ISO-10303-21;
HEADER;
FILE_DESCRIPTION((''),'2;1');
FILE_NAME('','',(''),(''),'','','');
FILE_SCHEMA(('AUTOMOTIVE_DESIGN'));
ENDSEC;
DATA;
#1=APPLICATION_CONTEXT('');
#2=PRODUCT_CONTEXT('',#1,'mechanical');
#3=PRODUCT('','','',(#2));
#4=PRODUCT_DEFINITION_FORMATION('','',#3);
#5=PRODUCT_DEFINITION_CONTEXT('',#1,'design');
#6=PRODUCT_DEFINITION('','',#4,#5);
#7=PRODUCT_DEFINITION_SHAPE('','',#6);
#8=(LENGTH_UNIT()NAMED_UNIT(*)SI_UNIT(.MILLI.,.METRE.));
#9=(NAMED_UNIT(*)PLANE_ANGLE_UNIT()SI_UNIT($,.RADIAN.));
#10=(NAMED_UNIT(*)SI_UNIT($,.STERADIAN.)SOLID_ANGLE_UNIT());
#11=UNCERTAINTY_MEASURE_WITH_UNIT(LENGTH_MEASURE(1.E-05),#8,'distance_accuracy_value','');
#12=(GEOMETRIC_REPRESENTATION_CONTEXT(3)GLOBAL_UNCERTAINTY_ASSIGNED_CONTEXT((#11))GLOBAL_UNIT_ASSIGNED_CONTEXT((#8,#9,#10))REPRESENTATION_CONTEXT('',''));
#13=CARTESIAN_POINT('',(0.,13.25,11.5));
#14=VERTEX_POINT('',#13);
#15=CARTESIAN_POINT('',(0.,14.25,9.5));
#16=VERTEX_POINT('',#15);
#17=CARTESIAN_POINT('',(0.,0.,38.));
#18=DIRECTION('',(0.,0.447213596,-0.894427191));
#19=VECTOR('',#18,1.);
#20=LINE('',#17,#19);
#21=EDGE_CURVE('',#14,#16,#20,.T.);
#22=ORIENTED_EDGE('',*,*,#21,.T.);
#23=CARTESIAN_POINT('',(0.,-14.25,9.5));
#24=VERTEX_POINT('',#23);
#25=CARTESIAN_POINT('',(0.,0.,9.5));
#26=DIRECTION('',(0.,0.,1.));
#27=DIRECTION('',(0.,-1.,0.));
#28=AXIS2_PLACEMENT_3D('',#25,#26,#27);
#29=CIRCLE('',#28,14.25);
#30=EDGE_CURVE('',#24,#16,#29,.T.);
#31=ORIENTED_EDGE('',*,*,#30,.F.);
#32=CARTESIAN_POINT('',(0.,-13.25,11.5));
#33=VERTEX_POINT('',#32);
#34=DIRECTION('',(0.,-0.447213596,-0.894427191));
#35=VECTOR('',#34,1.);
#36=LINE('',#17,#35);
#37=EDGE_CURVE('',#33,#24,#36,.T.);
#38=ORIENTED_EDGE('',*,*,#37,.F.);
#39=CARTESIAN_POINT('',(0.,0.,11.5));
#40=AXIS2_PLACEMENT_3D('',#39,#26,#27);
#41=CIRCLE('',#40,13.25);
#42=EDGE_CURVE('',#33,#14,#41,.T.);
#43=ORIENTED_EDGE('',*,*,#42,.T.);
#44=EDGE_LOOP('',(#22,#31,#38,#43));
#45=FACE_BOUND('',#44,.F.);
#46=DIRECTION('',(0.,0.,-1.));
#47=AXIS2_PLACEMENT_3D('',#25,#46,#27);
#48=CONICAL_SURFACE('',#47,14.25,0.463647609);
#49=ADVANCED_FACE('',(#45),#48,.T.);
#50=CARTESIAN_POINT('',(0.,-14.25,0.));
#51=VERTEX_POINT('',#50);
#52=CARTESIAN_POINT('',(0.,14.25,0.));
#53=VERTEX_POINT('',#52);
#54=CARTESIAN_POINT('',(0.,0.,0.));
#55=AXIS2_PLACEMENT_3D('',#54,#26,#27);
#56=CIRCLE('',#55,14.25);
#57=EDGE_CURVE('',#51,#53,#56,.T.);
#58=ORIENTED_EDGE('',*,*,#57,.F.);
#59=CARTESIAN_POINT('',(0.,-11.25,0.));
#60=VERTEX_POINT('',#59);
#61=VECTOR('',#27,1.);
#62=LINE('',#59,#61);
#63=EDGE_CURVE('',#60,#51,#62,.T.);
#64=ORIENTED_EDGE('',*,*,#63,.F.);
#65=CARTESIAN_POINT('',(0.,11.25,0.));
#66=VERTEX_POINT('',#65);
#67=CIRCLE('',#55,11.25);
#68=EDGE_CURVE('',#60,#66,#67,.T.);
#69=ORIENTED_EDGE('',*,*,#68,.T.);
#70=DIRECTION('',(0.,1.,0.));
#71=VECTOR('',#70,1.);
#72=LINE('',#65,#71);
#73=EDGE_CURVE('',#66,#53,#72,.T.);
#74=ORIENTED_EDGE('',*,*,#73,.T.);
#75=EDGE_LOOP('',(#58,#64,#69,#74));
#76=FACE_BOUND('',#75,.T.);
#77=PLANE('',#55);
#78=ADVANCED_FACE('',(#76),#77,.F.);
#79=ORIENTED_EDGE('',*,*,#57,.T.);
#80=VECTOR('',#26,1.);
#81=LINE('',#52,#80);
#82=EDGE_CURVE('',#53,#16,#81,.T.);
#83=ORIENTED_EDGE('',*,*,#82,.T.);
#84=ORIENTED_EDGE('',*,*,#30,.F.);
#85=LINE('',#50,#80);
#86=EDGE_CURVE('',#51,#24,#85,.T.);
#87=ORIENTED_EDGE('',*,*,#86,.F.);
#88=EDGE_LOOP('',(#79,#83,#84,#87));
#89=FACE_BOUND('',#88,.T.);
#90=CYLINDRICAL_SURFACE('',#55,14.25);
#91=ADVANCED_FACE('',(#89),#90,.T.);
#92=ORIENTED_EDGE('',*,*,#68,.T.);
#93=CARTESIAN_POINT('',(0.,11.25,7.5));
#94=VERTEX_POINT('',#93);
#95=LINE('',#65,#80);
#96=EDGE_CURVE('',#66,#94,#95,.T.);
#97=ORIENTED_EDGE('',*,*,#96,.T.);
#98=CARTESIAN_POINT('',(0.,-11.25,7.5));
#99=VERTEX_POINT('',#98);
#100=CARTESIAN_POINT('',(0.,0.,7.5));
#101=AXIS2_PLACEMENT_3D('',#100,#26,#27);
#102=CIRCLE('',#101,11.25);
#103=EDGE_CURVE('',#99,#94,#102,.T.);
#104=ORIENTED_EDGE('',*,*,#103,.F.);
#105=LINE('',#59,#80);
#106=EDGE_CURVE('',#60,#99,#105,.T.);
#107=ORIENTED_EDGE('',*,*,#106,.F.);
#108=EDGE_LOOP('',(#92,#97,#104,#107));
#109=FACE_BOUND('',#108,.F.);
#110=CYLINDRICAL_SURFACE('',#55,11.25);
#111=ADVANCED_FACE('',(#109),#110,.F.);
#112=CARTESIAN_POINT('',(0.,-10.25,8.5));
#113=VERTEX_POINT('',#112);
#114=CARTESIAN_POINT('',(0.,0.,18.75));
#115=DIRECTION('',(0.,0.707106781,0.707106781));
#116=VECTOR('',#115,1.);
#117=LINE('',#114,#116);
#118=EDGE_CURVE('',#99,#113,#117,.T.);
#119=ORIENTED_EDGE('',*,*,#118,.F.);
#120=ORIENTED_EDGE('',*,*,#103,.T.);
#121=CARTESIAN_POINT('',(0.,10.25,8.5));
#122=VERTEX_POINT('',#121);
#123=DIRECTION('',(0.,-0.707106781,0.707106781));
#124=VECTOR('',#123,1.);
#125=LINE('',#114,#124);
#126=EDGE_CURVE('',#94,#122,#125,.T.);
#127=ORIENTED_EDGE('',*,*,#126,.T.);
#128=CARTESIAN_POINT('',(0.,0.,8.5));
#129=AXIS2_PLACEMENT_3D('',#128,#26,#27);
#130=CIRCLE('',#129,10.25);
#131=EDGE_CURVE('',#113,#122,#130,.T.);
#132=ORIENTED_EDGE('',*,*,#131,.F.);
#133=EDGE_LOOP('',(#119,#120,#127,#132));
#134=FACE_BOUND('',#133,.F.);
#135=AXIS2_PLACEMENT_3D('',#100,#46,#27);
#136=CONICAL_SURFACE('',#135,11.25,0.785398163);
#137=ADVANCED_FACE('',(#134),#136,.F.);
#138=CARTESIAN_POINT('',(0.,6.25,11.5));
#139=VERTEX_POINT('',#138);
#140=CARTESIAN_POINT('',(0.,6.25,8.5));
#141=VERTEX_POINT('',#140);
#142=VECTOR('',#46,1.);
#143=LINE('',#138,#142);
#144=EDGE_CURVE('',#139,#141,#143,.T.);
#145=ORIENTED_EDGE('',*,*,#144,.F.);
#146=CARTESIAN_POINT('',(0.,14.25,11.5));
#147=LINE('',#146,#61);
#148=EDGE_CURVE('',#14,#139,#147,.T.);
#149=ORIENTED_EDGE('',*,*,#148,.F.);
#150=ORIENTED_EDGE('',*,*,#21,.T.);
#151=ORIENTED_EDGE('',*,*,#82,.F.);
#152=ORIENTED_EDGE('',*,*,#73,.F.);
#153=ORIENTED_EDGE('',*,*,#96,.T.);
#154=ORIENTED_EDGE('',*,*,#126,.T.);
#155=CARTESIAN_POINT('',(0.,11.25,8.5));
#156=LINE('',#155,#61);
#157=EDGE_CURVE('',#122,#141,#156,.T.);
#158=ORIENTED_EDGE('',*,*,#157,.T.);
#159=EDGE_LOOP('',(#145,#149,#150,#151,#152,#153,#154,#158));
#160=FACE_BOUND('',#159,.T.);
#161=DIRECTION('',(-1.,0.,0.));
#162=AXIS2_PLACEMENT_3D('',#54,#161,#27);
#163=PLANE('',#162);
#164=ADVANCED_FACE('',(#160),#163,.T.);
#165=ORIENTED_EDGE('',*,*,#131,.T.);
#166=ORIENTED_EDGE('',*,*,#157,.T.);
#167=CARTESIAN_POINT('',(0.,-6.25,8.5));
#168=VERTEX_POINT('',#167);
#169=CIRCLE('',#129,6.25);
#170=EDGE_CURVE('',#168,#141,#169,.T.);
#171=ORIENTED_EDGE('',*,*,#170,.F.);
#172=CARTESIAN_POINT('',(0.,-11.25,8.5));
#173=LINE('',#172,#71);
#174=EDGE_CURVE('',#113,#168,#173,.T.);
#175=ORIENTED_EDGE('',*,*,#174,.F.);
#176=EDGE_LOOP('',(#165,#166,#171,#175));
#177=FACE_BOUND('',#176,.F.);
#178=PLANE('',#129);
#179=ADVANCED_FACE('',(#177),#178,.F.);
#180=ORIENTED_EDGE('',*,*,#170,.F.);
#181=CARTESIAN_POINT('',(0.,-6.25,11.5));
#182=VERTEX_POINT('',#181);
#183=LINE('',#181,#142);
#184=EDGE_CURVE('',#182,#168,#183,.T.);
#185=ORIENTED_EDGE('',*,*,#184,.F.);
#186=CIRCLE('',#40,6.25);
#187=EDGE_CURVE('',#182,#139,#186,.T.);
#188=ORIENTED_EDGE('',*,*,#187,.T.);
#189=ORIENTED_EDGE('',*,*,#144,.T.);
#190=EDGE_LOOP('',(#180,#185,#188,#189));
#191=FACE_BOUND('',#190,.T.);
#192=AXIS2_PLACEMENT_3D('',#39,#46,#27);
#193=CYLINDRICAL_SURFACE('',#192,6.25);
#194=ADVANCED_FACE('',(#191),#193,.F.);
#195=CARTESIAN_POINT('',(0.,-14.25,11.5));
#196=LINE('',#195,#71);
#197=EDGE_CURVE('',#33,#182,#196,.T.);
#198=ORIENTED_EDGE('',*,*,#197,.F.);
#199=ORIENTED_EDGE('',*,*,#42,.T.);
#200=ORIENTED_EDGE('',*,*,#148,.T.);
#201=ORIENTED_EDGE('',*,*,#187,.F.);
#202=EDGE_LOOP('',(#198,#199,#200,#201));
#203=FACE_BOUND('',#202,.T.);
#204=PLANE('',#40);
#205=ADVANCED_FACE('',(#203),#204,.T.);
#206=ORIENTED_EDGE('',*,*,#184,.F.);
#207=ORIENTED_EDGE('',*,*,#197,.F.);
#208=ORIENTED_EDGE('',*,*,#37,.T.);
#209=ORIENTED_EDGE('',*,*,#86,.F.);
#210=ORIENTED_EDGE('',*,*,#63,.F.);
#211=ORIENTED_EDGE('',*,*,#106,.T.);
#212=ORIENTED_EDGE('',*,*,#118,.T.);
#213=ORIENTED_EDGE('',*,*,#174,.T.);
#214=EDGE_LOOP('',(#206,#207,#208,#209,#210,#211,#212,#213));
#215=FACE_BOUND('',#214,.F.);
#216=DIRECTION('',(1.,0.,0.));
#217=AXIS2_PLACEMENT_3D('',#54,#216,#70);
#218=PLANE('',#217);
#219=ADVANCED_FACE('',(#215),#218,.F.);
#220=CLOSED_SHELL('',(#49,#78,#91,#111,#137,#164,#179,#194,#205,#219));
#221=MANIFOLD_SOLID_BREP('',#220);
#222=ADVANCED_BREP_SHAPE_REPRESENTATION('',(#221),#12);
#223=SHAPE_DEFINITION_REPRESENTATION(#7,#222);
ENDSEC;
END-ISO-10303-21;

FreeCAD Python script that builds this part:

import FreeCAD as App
import Part
import Sketcher

V = App.Vector


def edges_at(feature, points):
    """Names of the edges that pass closest to the given points."""
    edges = feature.Shape.Edges
    near = lambda p: min(range(len(edges)), key=lambda i: edges[i].distToShape(Part.Vertex(*p))[0])
    return sorted({f"Edge{near(p) + 1}" for p in points})

doc = App.newDocument("Part")
body = doc.addObject("PartDesign::Body", "Body")

# Sketch on YZ plane
sketch1 = body.newObject("Sketcher::SketchObject", "Sketch")
sketch1.AttachmentSupport = (doc.getObject("YZ_Plane"), [""])
sketch1.MapMode = "FlatFace"
sketch1.addGeometry([
    Part.LineSegment(V(-14.2, 0, 0), V(-11.2, 0, 0)),  # 0
    Part.LineSegment(V(-11.2, 0, 0), V(-11.2, 8.5, 0)),  # 1
    Part.LineSegment(V(-11.2, 8.5, 0), V(-6.2, 8.5, 0)),  # 2
    Part.LineSegment(V(-6.2, 8.5, 0), V(-6.2, 11.5, 0)),  # 3
    Part.LineSegment(V(-6.2, 11.5, 0), V(-14.2, 11.5, 0)),  # 4
    Part.LineSegment(V(-14.2, 11.5, 0), V(-14.2, 0, 0)),  # 5
], False)
sketch1.addConstraint([
    Sketcher.Constraint("Coincident", 0, 2, 1, 1),
    Sketcher.Constraint("Coincident", 1, 2, 2, 1),
    Sketcher.Constraint("Coincident", 2, 2, 3, 1),
    Sketcher.Constraint("Coincident", 3, 2, 4, 1),
    Sketcher.Constraint("Coincident", 4, 2, 5, 1),
    Sketcher.Constraint("Coincident", 5, 2, 0, 1),
    Sketcher.Constraint("Horizontal", 0),
    Sketcher.Constraint("Vertical", 1),
    Sketcher.Constraint("Horizontal", 2),
    Sketcher.Constraint("Vertical", 3),
    Sketcher.Constraint("Horizontal", 4),
    Sketcher.Constraint("Vertical", 5),
    Sketcher.Constraint("PointOnObject", 0, 2, -1),
    Sketcher.Constraint("Equal", 0, 3),
    Sketcher.Constraint("DistanceX", 0, 1, 0, 2, 3.0),
    Sketcher.Constraint("DistanceY", 1, 1, 1, 2, 8.5),
    Sketcher.Constraint("DistanceX", 2, 1, 2, 2, 5.0),
    Sketcher.Constraint("DistanceX", 0, 2, -1, 1, 11.25),
])
revolution = body.newObject("PartDesign::Revolution", "Revolution")
revolution.Profile = sketch1
revolution.ReferenceAxis = (sketch1, ["V_Axis"])
revolution.Angle = 180
doc.recompute()

chamfer = body.newObject("PartDesign::Chamfer", "Chamfer")
chamfer.Base = (revolution, edges_at(revolution, [(14.25, 0, 11.5)]))
chamfer.ChamferType = "Two distances"
chamfer.Size = 1
chamfer.Size2 = 2
doc.recompute()

chamfer2 = body.newObject("PartDesign::Chamfer", "Chamfer001")
chamfer2.Base = (chamfer, edges_at(chamfer, [(11.25, 0, 8.5)]))
chamfer2.ChamferType = "Two distances"
chamfer2.Size = 1
chamfer2.Size2 = 1

doc.recompute()
